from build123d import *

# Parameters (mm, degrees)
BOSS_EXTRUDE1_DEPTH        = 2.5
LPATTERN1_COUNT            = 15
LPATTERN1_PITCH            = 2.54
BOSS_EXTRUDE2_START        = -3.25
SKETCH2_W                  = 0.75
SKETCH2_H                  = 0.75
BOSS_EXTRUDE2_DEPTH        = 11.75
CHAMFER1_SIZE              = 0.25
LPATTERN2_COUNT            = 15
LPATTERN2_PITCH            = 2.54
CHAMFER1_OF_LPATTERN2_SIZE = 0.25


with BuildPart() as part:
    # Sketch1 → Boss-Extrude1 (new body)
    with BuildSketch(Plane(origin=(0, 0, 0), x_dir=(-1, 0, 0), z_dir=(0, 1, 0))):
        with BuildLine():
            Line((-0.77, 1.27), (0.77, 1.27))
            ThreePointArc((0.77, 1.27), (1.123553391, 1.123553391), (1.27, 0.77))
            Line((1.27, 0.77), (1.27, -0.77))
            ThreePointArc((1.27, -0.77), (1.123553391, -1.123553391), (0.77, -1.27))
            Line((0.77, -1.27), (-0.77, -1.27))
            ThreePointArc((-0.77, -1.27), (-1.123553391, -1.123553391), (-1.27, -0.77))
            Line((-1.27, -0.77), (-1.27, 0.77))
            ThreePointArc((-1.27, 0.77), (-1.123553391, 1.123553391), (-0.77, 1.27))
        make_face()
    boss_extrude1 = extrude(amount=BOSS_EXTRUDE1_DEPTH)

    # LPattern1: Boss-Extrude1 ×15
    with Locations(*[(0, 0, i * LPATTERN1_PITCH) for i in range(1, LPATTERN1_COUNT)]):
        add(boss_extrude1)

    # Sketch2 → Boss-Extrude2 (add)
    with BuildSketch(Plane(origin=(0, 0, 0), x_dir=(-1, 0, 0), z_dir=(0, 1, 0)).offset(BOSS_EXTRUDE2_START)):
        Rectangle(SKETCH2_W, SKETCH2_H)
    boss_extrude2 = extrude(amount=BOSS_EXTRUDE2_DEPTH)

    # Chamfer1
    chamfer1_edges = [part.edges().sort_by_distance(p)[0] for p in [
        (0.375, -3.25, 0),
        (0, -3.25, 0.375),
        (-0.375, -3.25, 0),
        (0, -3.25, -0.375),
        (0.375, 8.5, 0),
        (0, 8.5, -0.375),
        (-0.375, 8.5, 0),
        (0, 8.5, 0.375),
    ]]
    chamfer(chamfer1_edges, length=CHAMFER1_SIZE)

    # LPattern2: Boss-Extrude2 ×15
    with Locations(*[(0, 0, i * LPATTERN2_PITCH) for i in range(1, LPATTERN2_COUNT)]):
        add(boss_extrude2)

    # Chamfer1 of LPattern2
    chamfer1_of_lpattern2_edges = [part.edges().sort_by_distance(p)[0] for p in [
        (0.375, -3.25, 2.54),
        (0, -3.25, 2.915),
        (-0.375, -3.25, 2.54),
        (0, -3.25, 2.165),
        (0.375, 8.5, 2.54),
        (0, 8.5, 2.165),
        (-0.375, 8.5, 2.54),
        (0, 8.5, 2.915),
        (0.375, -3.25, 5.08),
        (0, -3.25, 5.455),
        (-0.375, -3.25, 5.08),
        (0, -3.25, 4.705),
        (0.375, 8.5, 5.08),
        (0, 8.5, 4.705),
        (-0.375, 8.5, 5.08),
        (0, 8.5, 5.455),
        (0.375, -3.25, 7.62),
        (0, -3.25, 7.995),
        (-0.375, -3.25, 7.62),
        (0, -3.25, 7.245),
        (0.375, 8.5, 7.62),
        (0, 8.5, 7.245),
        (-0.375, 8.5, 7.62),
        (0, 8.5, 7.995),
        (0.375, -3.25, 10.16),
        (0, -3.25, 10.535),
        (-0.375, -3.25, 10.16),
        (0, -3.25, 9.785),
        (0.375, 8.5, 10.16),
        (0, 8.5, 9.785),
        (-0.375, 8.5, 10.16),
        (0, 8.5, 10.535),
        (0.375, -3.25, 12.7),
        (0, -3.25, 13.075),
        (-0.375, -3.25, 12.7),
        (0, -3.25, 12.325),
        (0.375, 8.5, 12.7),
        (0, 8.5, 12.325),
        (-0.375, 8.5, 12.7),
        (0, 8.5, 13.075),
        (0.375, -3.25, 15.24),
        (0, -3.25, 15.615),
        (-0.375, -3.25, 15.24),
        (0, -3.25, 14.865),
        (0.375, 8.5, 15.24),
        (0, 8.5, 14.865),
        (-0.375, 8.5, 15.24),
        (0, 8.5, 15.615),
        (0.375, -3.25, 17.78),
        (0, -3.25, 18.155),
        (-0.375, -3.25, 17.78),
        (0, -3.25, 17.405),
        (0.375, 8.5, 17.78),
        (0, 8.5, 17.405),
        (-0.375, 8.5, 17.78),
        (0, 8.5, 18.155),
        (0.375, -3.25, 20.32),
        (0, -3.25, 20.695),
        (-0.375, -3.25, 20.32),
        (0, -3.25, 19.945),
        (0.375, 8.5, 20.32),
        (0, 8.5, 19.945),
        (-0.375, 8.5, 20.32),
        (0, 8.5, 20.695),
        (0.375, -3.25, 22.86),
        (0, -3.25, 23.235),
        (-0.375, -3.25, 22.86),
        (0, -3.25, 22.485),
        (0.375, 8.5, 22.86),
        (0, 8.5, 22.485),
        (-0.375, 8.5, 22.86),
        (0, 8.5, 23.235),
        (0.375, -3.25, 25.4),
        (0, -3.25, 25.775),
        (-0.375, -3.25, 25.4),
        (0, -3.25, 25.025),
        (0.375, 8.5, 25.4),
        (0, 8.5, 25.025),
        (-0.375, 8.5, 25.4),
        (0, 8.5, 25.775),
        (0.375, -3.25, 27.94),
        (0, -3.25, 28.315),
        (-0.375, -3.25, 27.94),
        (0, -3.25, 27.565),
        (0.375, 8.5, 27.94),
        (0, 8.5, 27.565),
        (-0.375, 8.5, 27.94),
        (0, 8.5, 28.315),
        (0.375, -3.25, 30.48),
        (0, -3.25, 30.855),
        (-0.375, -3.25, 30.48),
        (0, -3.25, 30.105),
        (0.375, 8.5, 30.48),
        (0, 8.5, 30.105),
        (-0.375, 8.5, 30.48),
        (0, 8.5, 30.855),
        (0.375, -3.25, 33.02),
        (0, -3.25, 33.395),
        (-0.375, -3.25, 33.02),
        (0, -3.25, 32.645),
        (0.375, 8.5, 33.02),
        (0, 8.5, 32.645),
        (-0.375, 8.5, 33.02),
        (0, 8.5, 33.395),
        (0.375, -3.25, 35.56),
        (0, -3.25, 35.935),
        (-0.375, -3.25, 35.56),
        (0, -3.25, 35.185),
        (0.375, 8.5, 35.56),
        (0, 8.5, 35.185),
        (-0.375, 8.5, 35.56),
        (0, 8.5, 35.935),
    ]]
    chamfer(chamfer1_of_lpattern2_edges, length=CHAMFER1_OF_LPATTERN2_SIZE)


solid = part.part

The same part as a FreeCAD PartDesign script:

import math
import FreeCAD as App
import Part
import Sketcher
from FreeCAD import Vector
Q = App.Units.Quantity


def edges_at(feature, points):
    """Names of the edges that pass closest to the given points."""
    edges = feature.Shape.Edges
    near = lambda p: min(range(len(edges)), key=lambda i: edges[i].distToShape(Part.Vertex(*p))[0])
    return sorted({f"Edge{near(p) + 1}" for p in points})

doc = App.newDocument("Part")
body = doc.addObject("PartDesign::Body", "Body")

# Sketch on XZ plane
sketch1 = doc.addObject("Sketcher::SketchObject", "Sketch")
body.addObject(sketch1)
sketch1.AttachmentSupport = (doc.XZ_Plane, [""])
sketch1.MapMode = "FlatFace"
sketch1.addGeometry([
    Part.LineSegment(Vector(-0.77, 1.27, 0), Vector(0.77, 1.27, 0)),  # 0
    Part.ArcOfCircle(Part.Circle(Vector(0.77, 0.77, 0), Vector(0, 0, 1), 0.5), math.radians(0), math.radians(90)),  # 1
    Part.LineSegment(Vector(1.27, 0.77, 0), Vector(1.27, -0.77, 0)),  # 2
    Part.ArcOfCircle(Part.Circle(Vector(0.77, -0.77, 0), Vector(0, 0, 1), 0.5), math.radians(-90), math.radians(0)),  # 3
    Part.LineSegment(Vector(0.77, -1.27, 0), Vector(-0.77, -1.27, 0)),  # 4
    Part.ArcOfCircle(Part.Circle(Vector(-0.77, -0.77, 0), Vector(0, 0, 1), 0.5), math.radians(180), math.radians(270)),  # 5
    Part.LineSegment(Vector(-1.27, -0.77, 0), Vector(-1.27, 0.77, 0)),  # 6
    Part.ArcOfCircle(Part.Circle(Vector(-0.77, 0.77, 0), Vector(0, 0, 1), 0.5), math.radians(90), math.radians(180)),  # 7
], False)
sketch1.addConstraint([
    Sketcher.Constraint("Tangent", 0, 2, 1, 2),
    Sketcher.Constraint("Tangent", 1, 1, 2, 1),
    Sketcher.Constraint("Tangent", 2, 2, 3, 2),
    Sketcher.Constraint("Tangent", 3, 1, 4, 1),
    Sketcher.Constraint("Tangent", 4, 2, 5, 2),
    Sketcher.Constraint("Tangent", 5, 1, 6, 1),
    Sketcher.Constraint("Tangent", 6, 2, 7, 2),
    Sketcher.Constraint("Tangent", 7, 1, 0, 1),
    Sketcher.Constraint("Horizontal", 0),
    Sketcher.Constraint("Vertical", 2),
    Sketcher.Constraint("Horizontal", 4),
    Sketcher.Constraint("Vertical", 6),
    Sketcher.Constraint("Equal", 1, 3),
    Sketcher.Constraint("Equal", 3, 5),
    Sketcher.Constraint("Equal", 5, 7),
    Sketcher.Constraint("Symmetric", 1, 3, 5, 3, -1, 1),
    Sketcher.Constraint("Equal", 4, 2),
    Sketcher.Constraint("Radius", 1, Q("0.5 mm")),
    Sketcher.Constraint("DistanceX", 0, 1, 0, 2, Q("1.54 mm")),
])
pad1 = doc.addObject("PartDesign::Pad", "Pad")
body.addObject(pad1)
pad1.Profile = sketch1
pad1.Length = 2.5
pad1.Reversed = True
doc.recompute()

linearpattern = doc.addObject("PartDesign::LinearPattern", "LinearPattern")
body.addObject(linearpattern)
linearpattern.Originals = [pad1]
linearpattern.Direction = (doc.Z_Axis, [""])
linearpattern.Mode = "offset"
linearpattern.Offset = 2.54
linearpattern.Occurrences = 15
body.Tip = linearpattern

# Sketch on XZ plane
sketch2 = doc.addObject("Sketcher::SketchObject", "Sketch001")
body.addObject(sketch2)
sketch2.AttachmentSupport = (doc.XZ_Plane, [""])
sketch2.MapMode = "FlatFace"
sketch2.AttachmentOffset = App.Placement(Vector(0, 0, 3.25), App.Rotation())
sketch2.addGeometry([
    Part.LineSegment(Vector(0.4, 0.4, 0), Vector(0.4, -0.4, 0)),
    Part.LineSegment(Vector(0.4, -0.4, 0), Vector(-0.4, -0.4, 0)),
    Part.LineSegment(Vector(-0.4, -0.4, 0), Vector(-0.4, 0.4, 0)),
    Part.LineSegment(Vector(-0.4, 0.4, 0), Vector(0.4, 0.4, 0)),
], False)
sketch2.addConstraint([
    Sketcher.Constraint("Coincident", 0, 2, 1, 1),
    Sketcher.Constraint("Coincident", 1, 2, 2, 1),
    Sketcher.Constraint("Coincident", 2, 2, 3, 1),
    Sketcher.Constraint("Coincident", 3, 2, 0, 1),
    Sketcher.Constraint("Vertical", 0),
    Sketcher.Constraint("Horizontal", 1),
    Sketcher.Constraint("Vertical", 2),
    Sketcher.Constraint("Horizontal", 3),
    Sketcher.Constraint("Symmetric", 0, 2, 2, 2, -1, 1),
    Sketcher.Constraint("Equal", 3, 0),
    Sketcher.Constraint("DistanceX", 1, 2, 1, 1, Q("0.75 mm")),
])
pad2 = doc.addObject("PartDesign::Pad", "Pad001")
body.addObject(pad2)
pad2.Profile = sketch2
pad2.Length = 11.75
pad2.Reversed = True
doc.recompute()

chamfer = doc.addObject("PartDesign::Chamfer", "Chamfer")
body.addObject(chamfer)
chamfer.Base = (pad2, edges_at(pad2, [
    (0.375, -3.25, 0),
    (0, -3.25, 0.375),
    (-0.375, -3.25, 0),
    (0, -3.25, -0.375),
    (0.375, 8.5, 0),
    (0, 8.5, -0.375),
    (-0.375, 8.5, 0),
    (0, 8.5, 0.375),
]))
chamfer.Size = 0.25
doc.recompute()

linearpattern2 = doc.addObject("PartDesign::LinearPattern", "LinearPattern001")
body.addObject(linearpattern2)
linearpattern2.Originals = [pad2]
linearpattern2.Direction = (doc.Z_Axis, [""])
linearpattern2.Mode = "offset"
linearpattern2.Offset = 2.54
linearpattern2.Occurrences = 15
body.Tip = linearpattern2
doc.recompute()

chamfer2 = doc.addObject("PartDesign::Chamfer", "Chamfer001")
body.addObject(chamfer2)
chamfer2.Base = (linearpattern2, edges_at(linearpattern2, [
    (0.375, -3.25, 2.54),
    (0, -3.25, 2.915),
    (-0.375, -3.25, 2.54),
    (0, -3.25, 2.165),
    (0.375, 8.5, 2.54),
    (0, 8.5, 2.165),
    (-0.375, 8.5, 2.54),
    (0, 8.5, 2.915),
    (0.375, -3.25, 5.08),
    (0, -3.25, 5.455),
    (-0.375, -3.25, 5.08),
    (0, -3.25, 4.705),
    (0.375, 8.5, 5.08),
    (0, 8.5, 4.705),
    (-0.375, 8.5, 5.08),
    (0, 8.5, 5.455),
    (0.375, -3.25, 7.62),
    (0, -3.25, 7.995),
    (-0.375, -3.25, 7.62),
    (0, -3.25, 7.245),
    (0.375, 8.5, 7.62),
    (0, 8.5, 7.245),
    (-0.375, 8.5, 7.62),
    (0, 8.5, 7.995),
    (0.375, -3.25, 10.16),
    (0, -3.25, 10.535),
    (-0.375, -3.25, 10.16),
    (0, -3.25, 9.785),
    (0.375, 8.5, 10.16),
    (0, 8.5, 9.785),
    (-0.375, 8.5, 10.16),
    (0, 8.5, 10.535),
    (0.375, -3.25, 12.7),
    (0, -3.25, 13.075),
    (-0.375, -3.25, 12.7),
    (0, -3.25, 12.325),
    (0.375, 8.5, 12.7),
    (0, 8.5, 12.325),
    (-0.375, 8.5, 12.7),
    (0, 8.5, 13.075),
    (0.375, -3.25, 15.24),
    (0, -3.25, 15.615),
    (-0.375, -3.25, 15.24),
    (0, -3.25, 14.865),
    (0.375, 8.5, 15.24),
    (0, 8.5, 14.865),
    (-0.375, 8.5, 15.24),
    (0, 8.5, 15.615),
    (0.375, -3.25, 17.78),
    (0, -3.25, 18.155),
    (-0.375, -3.25, 17.78),
    (0, -3.25, 17.405),
    (0.375, 8.5, 17.78),
    (0, 8.5, 17.405),
    (-0.375, 8.5, 17.78),
    (0, 8.5, 18.155),
    (0.375, -3.25, 20.32),
    (0, -3.25, 20.695),
    (-0.375, -3.25, 20.32),
    (0, -3.25, 19.945),
    (0.375, 8.5, 20.32),
    (0, 8.5, 19.945),
    (-0.375, 8.5, 20.32),
    (0, 8.5, 20.695),
    (0.375, -3.25, 22.86),
    (0, -3.25, 23.235),
    (-0.375, -3.25, 22.86),
    (0, -3.25, 22.485),
    (0.375, 8.5, 22.86),
    (0, 8.5, 22.485),
    (-0.375, 8.5, 22.86),
    (0, 8.5, 23.235),
    (0.375, -3.25, 25.4),
    (0, -3.25, 25.775),
    (-0.375, -3.25, 25.4),
    (0, -3.25, 25.025),
    (0.375, 8.5, 25.4),
    (0, 8.5, 25.025),
    (-0.375, 8.5, 25.4),
    (0, 8.5, 25.775),
    (0.375, -3.25, 27.94),
    (0, -3.25, 28.315),
    (-0.375, -3.25, 27.94),
    (0, -3.25, 27.565),
    (0.375, 8.5, 27.94),
    (0, 8.5, 27.565),
    (-0.375, 8.5, 27.94),
    (0, 8.5, 28.315),
    (0.375, -3.25, 30.48),
    (0, -3.25, 30.855),
    (-0.375, -3.25, 30.48),
    (0, -3.25, 30.105),
    (0.375, 8.5, 30.48),
    (0, 8.5, 30.105),
    (-0.375, 8.5, 30.48),
    (0, 8.5, 30.855),
    (0.375, -3.25, 33.02),
    (0, -3.25, 33.395),
    (-0.375, -3.25, 33.02),
    (0, -3.25, 32.645),
    (0.375, 8.5, 33.02),
    (0, 8.5, 32.645),
    (-0.375, 8.5, 33.02),
    (0, 8.5, 33.395),
    (0.375, -3.25, 35.56),
    (0, -3.25, 35.935),
    (-0.375, -3.25, 35.56),
    (0, -3.25, 35.185),
    (0.375, 8.5, 35.56),
    (0, 8.5, 35.185),
    (-0.375, 8.5, 35.56),
    (0, 8.5, 35.935),
]))
chamfer2.Size = 0.25

doc.recompute()
